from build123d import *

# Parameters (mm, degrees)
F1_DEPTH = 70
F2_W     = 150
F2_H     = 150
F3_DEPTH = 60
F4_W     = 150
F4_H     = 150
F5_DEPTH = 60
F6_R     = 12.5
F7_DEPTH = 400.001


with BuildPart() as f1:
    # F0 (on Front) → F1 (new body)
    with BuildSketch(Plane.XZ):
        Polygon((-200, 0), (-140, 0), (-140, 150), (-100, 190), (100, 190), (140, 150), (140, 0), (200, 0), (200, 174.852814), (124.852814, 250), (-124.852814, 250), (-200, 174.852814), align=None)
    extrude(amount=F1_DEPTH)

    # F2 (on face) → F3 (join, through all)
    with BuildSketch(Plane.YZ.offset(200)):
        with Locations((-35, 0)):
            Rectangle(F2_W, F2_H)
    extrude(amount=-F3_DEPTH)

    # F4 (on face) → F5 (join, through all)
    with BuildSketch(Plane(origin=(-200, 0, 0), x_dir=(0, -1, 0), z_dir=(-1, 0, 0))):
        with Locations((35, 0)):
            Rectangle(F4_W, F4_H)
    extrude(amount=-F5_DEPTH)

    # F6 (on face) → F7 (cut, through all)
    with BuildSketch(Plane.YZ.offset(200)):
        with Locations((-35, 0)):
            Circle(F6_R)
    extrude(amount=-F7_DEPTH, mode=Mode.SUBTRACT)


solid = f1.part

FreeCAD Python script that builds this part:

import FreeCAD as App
import Part
import Sketcher
from FreeCAD import Vector
Q = App.Units.Quantity

doc = App.newDocument("Part")
body = doc.addObject("PartDesign::Body", "Body")

sketch1 = body.newObject("Sketcher::SketchObject", "Sketch")
sketch1.AttachmentSupport = (doc.getObject("XZ_Plane"), [""])
sketch1.MapMode = "FlatFace"
sketch1.addGeometry([
    Part.LineSegment(Vector(-200, 0, 0), Vector(-140, 0, 0)),
    Part.LineSegment(Vector(-140, 0, 0), Vector(-140, 150, 0)),
    Part.LineSegment(Vector(-140, 150, 0), Vector(-100, 190, 0)),
    Part.LineSegment(Vector(-100, 190, 0), Vector(100, 190, 0)),
    Part.LineSegment(Vector(100, 190, 0), Vector(140, 150, 0)),
    Part.LineSegment(Vector(140, 150, 0), Vector(140, 0, 0)),
    Part.LineSegment(Vector(140, 0, 0), Vector(200, 0, 0)),
    Part.LineSegment(Vector(200, 0, 0), Vector(200, 175, 0)),
    Part.LineSegment(Vector(200, 175, 0), Vector(125, 250, 0)),
    Part.LineSegment(Vector(125, 250, 0), Vector(-125, 250, 0)),
    Part.LineSegment(Vector(-125, 250, 0), Vector(-200, 175, 0)),
    Part.LineSegment(Vector(-200, 175, 0), Vector(-200, 0, 0)),
], False)
sketch1.addConstraint([
    Sketcher.Constraint("Coincident", 0, 2, 1, 1),
    Sketcher.Constraint("Coincident", 1, 2, 2, 1),
    Sketcher.Constraint("Coincident", 2, 2, 3, 1),
    Sketcher.Constraint("Coincident", 3, 2, 4, 1),
    Sketcher.Constraint("Coincident", 4, 2, 5, 1),
    Sketcher.Constraint("Coincident", 5, 2, 6, 1),
    Sketcher.Constraint("Coincident", 6, 2, 7, 1),
    Sketcher.Constraint("Coincident", 7, 2, 8, 1),
    Sketcher.Constraint("Coincident", 8, 2, 9, 1),
    Sketcher.Constraint("Coincident", 9, 2, 10, 1),
    Sketcher.Constraint("Coincident", 10, 2, 11, 1),
    Sketcher.Constraint("Coincident", 11, 2, 0, 1),
    Sketcher.Constraint("Horizontal", 0),
    Sketcher.Constraint("Vertical", 1),
    Sketcher.Constraint("Horizontal", 3),
    Sketcher.Constraint("Vertical", 5),
    Sketcher.Constraint("Horizontal", 6),
    Sketcher.Constraint("Vertical", 7),
    Sketcher.Constraint("Horizontal", 9),
    Sketcher.Constraint("Vertical", 11),
    Sketcher.Constraint("Symmetric", 0, 2, 5, 2, -1, 1),
    Sketcher.Constraint("Symmetric", 7, 2, 10, 2, -2),
    Sketcher.Constraint("PointOnObject", 0, 2, -1),
    Sketcher.Constraint("Perpendicular", 2, 4),
    Sketcher.Constraint("Parallel", 4, 8),
    Sketcher.Constraint("Perpendicular", 8, 10),
    Sketcher.Constraint("Horizontal", 1, 2, 4, 2),
    Sketcher.Constraint("Equal", 2, 4),
    Sketcher.Constraint("DistanceX", 0, 1, 0, 2, Q("60 mm")),
    Sketcher.Constraint("DistanceX", 3, 1, 3, 2, Q("200 mm")),
    Sketcher.Constraint("DistanceY", 1, 1, 1, 2, Q("150 mm")),
    Sketcher.Constraint("DistanceX", 0, 2, -1, 1, Q("140 mm")),
    Sketcher.Constraint("DistanceY", -1, 1, 8, 2, Q("250 mm")),
    Sketcher.Constraint("Distance", 8, Q("106.27417 mm")),
])
pad1 = body.newObject("PartDesign::Pad", "Pad")
pad1.Profile = sketch1
pad1.Length = 70

sketch2 = body.newObject("Sketcher::SketchObject", "Sketch001")
sketch2.AttachmentSupport = (doc.getObject("YZ_Plane"), [""])
sketch2.MapMode = "FlatFace"
sketch2.AttachmentOffset = App.Placement(Vector(0, 0, 200), App.Rotation())
sketch2.addGeometry([
    Part.LineSegment(Vector(-110, 75, 0), Vector(-110, -75, 0)),
    Part.LineSegment(Vector(-110, -75, 0), Vector(40, -75, 0)),
    Part.LineSegment(Vector(40, -75, 0), Vector(40, 75, 0)),
    Part.LineSegment(Vector(40, 75, 0), Vector(-110, 75, 0)),
], False)
sketch2.addConstraint([
    Sketcher.Constraint("Coincident", 0, 2, 1, 1),
    Sketcher.Constraint("Coincident", 1, 2, 2, 1),
    Sketcher.Constraint("Coincident", 2, 2, 3, 1),
    Sketcher.Constraint("Coincident", 3, 2, 0, 1),
    Sketcher.Constraint("Vertical", 0),
    Sketcher.Constraint("Horizontal", 1),
    Sketcher.Constraint("Vertical", 2),
    Sketcher.Constraint("Horizontal", 3),
    Sketcher.Constraint("Equal", 3, 0),
    Sketcher.Constraint("DistanceX", 1, 1, 1, 2, Q("150 mm")),
    Sketcher.Constraint("DistanceX", 0, 2, -1, 1, Q("110 mm")),
    Sketcher.Constraint("DistanceY", 0, 2, -1, 1, Q("75 mm")),
])
pad2 = body.newObject("PartDesign::Pad", "Pad001")
pad2.Profile = sketch2
pad2.Length = 60
pad2.Reversed = True

sketch3 = body.newObject("Sketcher::SketchObject", "Sketch002")
sketch3.AttachmentSupport = (doc.getObject("YZ_Plane"), [""])
sketch3.MapMode = "FlatFace"
sketch3.AttachmentOffset = App.Placement(Vector(0, 0, -200), App.Rotation())
sketch3.addGeometry([
    Part.LineSegment(Vector(40, 75, 0), Vector(40, -75, 0)),
    Part.LineSegment(Vector(40, -75, 0), Vector(-110, -75, 0)),
    Part.LineSegment(Vector(-110, -75, 0), Vector(-110, 75, 0)),
    Part.LineSegment(Vector(-110, 75, 0), Vector(40, 75, 0)),
], False)
sketch3.addConstraint([
    Sketcher.Constraint("Coincident", 0, 2, 1, 1),
    Sketcher.Constraint("Coincident", 1, 2, 2, 1),
    Sketcher.Constraint("Coincident", 2, 2, 3, 1),
    Sketcher.Constraint("Coincident", 3, 2, 0, 1),
    Sketcher.Constraint("Vertical", 0),
    Sketcher.Constraint("Horizontal", 1),
    Sketcher.Constraint("Vertical", 2),
    Sketcher.Constraint("Horizontal", 3),
    Sketcher.Constraint("Equal", 3, 0),
    Sketcher.Constraint("DistanceX", 1, 2, 1, 1, Q("150 mm")),
    Sketcher.Constraint("DistanceX", -1, 1, 0, 2, Q("40 mm")),
    Sketcher.Constraint("DistanceY", 0, 2, -1, 1, Q("75 mm")),
])
pad3 = body.newObject("PartDesign::Pad", "Pad002")
pad3.Profile = sketch3
pad3.Length = 60

sketch4 = body.newObject("Sketcher::SketchObject", "Sketch003")
sketch4.AttachmentSupport = (doc.getObject("YZ_Plane"), [""])
sketch4.MapMode = "FlatFace"
sketch4.AttachmentOffset = App.Placement(Vector(0, 0, 200), App.Rotation())
sketch4.addGeometry(Part.Circle(Vector(-35, 0, 0), Vector(0, 0, 1), 12), False)
sketch4.addConstraint([
    Sketcher.Constraint("PointOnObject", 0, 3, -1),
    Sketcher.Constraint("Diameter", 0, Q("25 mm")),
    Sketcher.Constraint("DistanceX", 0, 3, -1, 1, Q("35 mm")),
])
pocket1 = body.newObject("PartDesign::Pocket", "Pocket")
pocket1.Profile = sketch4
pocket1.Type = "ThroughAll"

doc.recompute()
